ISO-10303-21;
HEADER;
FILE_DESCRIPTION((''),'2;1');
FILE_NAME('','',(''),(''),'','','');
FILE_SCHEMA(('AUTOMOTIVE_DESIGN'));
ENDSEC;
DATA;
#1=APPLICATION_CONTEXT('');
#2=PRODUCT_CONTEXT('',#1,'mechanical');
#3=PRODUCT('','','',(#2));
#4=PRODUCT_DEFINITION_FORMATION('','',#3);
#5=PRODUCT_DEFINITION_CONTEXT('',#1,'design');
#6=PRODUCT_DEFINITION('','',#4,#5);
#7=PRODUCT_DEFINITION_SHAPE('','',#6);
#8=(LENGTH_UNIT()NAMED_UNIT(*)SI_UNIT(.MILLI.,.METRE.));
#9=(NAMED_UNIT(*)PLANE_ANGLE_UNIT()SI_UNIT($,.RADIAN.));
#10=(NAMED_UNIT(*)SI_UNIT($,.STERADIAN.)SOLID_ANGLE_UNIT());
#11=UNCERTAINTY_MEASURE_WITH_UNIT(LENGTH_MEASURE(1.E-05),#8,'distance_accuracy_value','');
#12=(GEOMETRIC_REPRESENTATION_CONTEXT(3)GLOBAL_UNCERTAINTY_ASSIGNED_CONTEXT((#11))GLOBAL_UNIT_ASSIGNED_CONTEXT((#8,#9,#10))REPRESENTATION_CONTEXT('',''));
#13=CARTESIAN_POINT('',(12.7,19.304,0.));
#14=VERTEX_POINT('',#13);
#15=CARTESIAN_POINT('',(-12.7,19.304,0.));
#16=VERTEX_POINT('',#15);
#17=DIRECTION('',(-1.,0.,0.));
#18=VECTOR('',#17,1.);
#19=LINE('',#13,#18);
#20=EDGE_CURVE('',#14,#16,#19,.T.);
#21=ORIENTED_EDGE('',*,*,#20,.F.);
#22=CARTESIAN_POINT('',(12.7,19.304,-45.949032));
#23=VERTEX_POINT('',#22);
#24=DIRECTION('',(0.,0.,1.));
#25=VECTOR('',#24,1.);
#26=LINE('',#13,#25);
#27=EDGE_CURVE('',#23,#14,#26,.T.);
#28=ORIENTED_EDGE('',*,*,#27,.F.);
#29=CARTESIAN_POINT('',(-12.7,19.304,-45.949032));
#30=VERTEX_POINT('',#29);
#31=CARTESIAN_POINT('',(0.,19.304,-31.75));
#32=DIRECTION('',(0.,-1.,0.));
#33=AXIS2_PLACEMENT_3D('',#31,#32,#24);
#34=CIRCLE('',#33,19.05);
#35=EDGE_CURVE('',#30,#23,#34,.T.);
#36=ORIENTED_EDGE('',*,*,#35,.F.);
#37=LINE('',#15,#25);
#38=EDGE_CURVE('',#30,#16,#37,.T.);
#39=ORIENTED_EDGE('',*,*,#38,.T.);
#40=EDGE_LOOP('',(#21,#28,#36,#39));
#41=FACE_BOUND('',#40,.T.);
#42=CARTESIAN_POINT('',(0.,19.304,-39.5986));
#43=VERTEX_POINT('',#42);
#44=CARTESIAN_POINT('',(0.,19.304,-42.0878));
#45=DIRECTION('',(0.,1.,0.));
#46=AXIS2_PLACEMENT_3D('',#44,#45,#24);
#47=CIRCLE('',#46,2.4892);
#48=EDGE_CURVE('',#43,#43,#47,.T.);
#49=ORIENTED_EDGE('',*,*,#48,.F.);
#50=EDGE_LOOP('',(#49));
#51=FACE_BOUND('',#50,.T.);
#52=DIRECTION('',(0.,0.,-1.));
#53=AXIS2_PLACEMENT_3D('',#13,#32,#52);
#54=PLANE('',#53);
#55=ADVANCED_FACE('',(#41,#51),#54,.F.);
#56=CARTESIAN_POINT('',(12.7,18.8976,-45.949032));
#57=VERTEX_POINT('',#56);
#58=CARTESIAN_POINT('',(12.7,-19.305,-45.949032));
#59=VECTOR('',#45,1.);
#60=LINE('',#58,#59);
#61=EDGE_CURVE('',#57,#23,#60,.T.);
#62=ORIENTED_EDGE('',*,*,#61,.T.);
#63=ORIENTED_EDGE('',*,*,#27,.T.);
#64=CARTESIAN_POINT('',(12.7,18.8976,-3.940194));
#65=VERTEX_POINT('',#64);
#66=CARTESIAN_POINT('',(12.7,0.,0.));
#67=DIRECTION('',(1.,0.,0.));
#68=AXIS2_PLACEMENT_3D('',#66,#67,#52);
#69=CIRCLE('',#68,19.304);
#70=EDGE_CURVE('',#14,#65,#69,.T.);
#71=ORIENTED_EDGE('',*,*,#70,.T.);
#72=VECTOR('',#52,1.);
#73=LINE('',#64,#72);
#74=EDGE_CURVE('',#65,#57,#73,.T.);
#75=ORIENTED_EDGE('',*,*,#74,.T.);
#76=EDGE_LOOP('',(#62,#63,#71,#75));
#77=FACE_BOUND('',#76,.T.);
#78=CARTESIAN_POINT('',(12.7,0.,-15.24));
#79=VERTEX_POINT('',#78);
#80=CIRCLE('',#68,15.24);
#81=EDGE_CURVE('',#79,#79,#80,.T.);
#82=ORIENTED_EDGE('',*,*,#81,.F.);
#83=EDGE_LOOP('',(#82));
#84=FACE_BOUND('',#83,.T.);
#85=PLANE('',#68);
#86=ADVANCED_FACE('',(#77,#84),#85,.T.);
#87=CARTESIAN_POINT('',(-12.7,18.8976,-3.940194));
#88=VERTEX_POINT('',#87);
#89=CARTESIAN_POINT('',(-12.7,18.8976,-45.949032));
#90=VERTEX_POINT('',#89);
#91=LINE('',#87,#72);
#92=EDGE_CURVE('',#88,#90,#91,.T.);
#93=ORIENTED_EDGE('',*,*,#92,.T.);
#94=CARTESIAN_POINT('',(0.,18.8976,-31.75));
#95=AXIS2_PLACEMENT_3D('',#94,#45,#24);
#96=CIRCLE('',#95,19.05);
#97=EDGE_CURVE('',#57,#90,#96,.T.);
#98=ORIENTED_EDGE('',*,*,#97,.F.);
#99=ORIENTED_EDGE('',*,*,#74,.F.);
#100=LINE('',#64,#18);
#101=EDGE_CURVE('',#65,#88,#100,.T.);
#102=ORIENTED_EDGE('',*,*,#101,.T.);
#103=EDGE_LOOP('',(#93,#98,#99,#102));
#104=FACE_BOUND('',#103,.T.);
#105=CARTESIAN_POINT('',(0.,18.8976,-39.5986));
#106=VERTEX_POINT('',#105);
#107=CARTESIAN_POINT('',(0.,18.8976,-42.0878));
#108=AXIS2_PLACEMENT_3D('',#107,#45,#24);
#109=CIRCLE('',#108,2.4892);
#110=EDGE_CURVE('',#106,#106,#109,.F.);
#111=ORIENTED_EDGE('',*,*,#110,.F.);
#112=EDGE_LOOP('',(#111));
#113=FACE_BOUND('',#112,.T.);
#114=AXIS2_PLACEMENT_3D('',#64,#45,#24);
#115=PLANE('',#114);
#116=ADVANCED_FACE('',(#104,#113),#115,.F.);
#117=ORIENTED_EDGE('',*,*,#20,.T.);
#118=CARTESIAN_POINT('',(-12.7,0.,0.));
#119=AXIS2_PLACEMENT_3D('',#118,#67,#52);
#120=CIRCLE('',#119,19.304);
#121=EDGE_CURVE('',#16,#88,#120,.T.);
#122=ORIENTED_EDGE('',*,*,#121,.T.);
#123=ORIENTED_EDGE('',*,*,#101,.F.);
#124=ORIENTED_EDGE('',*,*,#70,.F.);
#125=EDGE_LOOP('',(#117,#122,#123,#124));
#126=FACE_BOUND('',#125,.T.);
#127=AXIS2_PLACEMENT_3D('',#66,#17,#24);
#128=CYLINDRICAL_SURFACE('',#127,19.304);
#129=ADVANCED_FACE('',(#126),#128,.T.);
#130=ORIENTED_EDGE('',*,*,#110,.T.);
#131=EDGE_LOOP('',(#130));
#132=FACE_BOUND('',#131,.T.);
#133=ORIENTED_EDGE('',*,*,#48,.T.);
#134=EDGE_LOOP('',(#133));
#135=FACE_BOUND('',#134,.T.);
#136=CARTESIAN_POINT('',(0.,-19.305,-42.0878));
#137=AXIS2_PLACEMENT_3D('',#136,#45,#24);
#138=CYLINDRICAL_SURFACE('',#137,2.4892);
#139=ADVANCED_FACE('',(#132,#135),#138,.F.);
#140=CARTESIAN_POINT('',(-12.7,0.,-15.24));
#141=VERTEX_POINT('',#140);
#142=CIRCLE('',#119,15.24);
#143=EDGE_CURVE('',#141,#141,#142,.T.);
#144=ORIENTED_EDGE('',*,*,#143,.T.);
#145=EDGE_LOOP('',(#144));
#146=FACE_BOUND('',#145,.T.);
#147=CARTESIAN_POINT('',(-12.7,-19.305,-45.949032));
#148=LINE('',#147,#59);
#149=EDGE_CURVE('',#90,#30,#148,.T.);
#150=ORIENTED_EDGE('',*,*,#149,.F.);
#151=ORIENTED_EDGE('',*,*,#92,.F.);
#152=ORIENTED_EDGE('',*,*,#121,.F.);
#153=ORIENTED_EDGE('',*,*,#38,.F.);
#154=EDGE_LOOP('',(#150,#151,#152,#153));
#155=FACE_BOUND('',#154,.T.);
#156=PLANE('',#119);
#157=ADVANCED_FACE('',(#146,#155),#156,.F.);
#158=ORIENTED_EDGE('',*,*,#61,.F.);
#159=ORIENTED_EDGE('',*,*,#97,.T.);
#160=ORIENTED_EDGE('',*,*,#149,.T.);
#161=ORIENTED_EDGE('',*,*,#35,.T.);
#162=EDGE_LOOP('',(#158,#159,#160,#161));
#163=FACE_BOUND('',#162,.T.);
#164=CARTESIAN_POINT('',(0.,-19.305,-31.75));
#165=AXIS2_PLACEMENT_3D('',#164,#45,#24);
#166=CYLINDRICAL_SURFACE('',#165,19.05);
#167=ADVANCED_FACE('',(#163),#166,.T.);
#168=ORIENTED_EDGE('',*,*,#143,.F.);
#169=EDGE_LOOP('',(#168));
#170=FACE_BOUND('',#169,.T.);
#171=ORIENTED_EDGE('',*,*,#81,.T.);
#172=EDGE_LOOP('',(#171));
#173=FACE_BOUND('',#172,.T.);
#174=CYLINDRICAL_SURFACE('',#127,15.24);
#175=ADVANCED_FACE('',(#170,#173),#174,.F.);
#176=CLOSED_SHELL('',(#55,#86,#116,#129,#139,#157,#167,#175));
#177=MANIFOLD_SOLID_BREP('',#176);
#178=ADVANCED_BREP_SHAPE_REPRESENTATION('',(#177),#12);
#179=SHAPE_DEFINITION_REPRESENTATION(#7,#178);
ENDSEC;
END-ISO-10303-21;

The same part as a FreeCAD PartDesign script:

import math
import FreeCAD as App
import Part
import Sketcher
Q = App.Units.Quantity

doc = App.newDocument("Part")
body = doc.addObject("PartDesign::Body", "Body")

sketch1 = body.newObject("Sketcher::SketchObject", "Sketch")
sketch1.AttachmentSupport = (doc.getObject("YZ_Plane"), [""])
sketch1.MapMode = "FlatFace"
sketch1.addGeometry([
    Part.LineSegment(App.Vector(19.3, -50.8, 0), App.Vector(19.3, 0, 0)),
    Part.ArcOfCircle(Part.Circle(App.Vector(0, 0, 0), App.Vector(0, 0, 1), 19.3), math.radians(0), math.radians(348)),
    Part.LineSegment(App.Vector(18.9, -3.94, 0), App.Vector(18.9, -50.8, 0)),
    Part.LineSegment(App.Vector(18.9, -50.8, 0), App.Vector(19.3, -50.8, 0)),
    Part.Circle(App.Vector(0, 0, 0), App.Vector(0, 0, 1), 15.24),
], False)
sketch1.addConstraint([
    Sketcher.Constraint("Tangent", 0, 2, 1, 1),
    Sketcher.Constraint("Coincident", 1, 2, 2, 1),
    Sketcher.Constraint("Coincident", 2, 2, 3, 1),
    Sketcher.Constraint("Coincident", 3, 2, 0, 1),
    Sketcher.Constraint("Vertical", 0),
    Sketcher.Constraint("Vertical", 2),
    Sketcher.Constraint("Horizontal", 3),
    Sketcher.Constraint("Coincident", 1, 3, -1, 1),
    Sketcher.Constraint("Coincident", 4, 3, -1, 1),
    Sketcher.Constraint("Diameter", 4, Q("1.2 in")),
    Sketcher.Constraint("DistanceY", 0, 1, 0, 2, Q("2 in")),
    Sketcher.Constraint("Radius", 1, Q("0.76 in")),
    Sketcher.Constraint("DistanceX", 3, 1, 3, 2, Q("0.016 in")),
])
pad1 = body.newObject("PartDesign::Pad", "Pad")
pad1.Profile = sketch1
pad1.Length = Q("1 in")
pad1.Midplane = True

sketch2 = body.newObject("Sketcher::SketchObject", "Sketch001")
sketch2.AttachmentSupport = (doc.getObject("XZ_Plane"), [""])
sketch2.MapMode = "FlatFace"
sketch2.AttachmentOffset = App.Placement(App.Vector(0, 0, -0.744 * 25.4), App.Rotation())
sketch2.addGeometry([
    Part.Circle(App.Vector(0, -42.1, 0), App.Vector(0, 0, 1), 2.5),
    Part.LineSegment(App.Vector(-12.7, -51.4, 0), App.Vector(-12.7, -45.9, 0)),
    Part.ArcOfCircle(Part.Circle(App.Vector(0, -31.8, 0), App.Vector(0, 0, 1), 19.1), math.radians(-132), math.radians(-48)),
    Part.LineSegment(App.Vector(12.7, -45.9, 0), App.Vector(12.7, -51.4, 0)),
    Part.LineSegment(App.Vector(12.7, -51.4, 0), App.Vector(-12.7, -51.4, 0)),
], False)
sketch2.addConstraint([
    Sketcher.Constraint("Coincident", 1, 2, 2, 1),
    Sketcher.Constraint("Coincident", 2, 2, 3, 1),
    Sketcher.Constraint("Coincident", 3, 2, 4, 1),
    Sketcher.Constraint("Coincident", 4, 2, 1, 1),
    Sketcher.Constraint("Vertical", 1),
    Sketcher.Constraint("Vertical", 3),
    Sketcher.Constraint("Horizontal", 4),
    Sketcher.Constraint("Symmetric", 1, 2, 2, 2, -2),
    Sketcher.Constraint("PointOnObject", 0, 3, -2),
    Sketcher.Constraint("DistanceX", 4, 2, 4, 1, Q("1 in")),
    Sketcher.Constraint("Radius", 2, Q("0.75 in")),
    Sketcher.Constraint("Diameter", 0, Q("0.196 in")),
    Sketcher.Constraint("DistanceY", 2, 3, -1, 1, Q("1.25 in")),
    Sketcher.Constraint("DistanceY", 0, 3, -1, 1, Q("1.657 in")),
    Sketcher.Constraint("DistanceY", 3, 2, -1, 1, Q("2.025 in")),
])
pocket1 = body.newObject("PartDesign::Pocket", "Pocket")
pocket1.Profile = sketch2
pocket1.Length = Q("0.016 in")

doc.recompute()
